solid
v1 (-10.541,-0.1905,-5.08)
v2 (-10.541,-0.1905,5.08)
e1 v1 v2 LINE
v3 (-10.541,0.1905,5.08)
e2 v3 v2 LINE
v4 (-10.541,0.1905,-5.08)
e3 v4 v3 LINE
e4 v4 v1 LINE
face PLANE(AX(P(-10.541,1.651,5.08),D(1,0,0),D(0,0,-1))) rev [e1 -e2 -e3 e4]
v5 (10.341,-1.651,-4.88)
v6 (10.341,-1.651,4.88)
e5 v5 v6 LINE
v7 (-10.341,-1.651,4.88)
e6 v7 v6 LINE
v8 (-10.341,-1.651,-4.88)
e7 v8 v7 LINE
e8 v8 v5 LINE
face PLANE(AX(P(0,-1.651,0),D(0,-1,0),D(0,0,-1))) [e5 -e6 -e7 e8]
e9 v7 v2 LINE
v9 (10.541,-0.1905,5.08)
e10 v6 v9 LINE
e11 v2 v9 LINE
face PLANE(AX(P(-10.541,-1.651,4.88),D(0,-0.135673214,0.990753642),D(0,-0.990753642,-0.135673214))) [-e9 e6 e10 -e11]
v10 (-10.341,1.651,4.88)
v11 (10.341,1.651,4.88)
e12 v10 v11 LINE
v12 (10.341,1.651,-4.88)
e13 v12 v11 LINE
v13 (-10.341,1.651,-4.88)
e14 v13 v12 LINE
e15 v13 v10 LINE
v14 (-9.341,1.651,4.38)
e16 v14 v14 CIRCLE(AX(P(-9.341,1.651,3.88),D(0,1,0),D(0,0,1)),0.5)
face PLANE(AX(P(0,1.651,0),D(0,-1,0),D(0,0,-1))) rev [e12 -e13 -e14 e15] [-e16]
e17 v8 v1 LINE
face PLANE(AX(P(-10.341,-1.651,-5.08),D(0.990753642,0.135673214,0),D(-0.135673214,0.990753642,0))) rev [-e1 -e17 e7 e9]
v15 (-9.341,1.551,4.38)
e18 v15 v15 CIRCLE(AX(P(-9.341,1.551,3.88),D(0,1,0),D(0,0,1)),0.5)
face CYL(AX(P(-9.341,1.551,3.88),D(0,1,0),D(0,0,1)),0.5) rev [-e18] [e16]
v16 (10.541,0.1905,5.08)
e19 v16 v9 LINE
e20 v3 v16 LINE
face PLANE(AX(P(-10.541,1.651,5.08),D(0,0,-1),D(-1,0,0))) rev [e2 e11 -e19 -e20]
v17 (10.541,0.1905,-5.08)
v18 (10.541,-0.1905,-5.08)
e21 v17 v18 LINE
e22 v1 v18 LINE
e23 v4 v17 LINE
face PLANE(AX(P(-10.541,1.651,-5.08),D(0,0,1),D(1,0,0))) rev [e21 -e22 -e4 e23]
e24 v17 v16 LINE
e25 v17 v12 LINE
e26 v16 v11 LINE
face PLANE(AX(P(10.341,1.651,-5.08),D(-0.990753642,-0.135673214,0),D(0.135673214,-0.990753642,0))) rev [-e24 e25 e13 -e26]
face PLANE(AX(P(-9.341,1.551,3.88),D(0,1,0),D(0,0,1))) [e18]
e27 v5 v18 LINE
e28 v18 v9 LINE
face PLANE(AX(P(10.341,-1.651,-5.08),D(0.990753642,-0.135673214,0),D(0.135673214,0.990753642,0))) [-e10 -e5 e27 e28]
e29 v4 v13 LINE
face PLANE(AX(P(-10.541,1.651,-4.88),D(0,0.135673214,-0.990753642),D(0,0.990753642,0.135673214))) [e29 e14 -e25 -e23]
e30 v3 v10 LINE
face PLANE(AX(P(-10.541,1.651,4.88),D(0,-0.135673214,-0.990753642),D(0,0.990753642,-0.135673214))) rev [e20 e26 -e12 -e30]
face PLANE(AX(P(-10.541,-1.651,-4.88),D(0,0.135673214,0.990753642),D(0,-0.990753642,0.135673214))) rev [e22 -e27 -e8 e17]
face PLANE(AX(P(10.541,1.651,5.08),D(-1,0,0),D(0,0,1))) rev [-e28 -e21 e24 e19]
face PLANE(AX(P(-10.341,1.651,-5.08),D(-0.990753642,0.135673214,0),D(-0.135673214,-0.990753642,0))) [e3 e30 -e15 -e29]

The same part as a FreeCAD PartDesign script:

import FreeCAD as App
import Part
import Sketcher

V = App.Vector
Q = App.Units.Quantity

doc = App.newDocument("Part")
params = doc.addObject("Spreadsheet::Sheet", "Params")
for row, (alias, value) in enumerate([
    ("sketch1_height", "10.16 mm"),
    ("pad1_length", "3.302 mm"),
    ("sketch2_height", "0.2 mm"),
    ("sketch3_height", "0.2 mm"),
    ("sketch4_width", "0.2 mm"),
    ("sketch5_width", "0.2 mm"),
    ("sketch6_diameter", "1 mm"),
    ("pocket5_length", "0.1 mm"),
], start=1):
    params.set(f"A{row}", alias)
    params.set(f"B{row}", "=" + value)
    params.setAlias(f"B{row}", alias)

body = doc.addObject("PartDesign::Body", "Body")

# Sketch on XZ plane
sketch1 = body.newObject("Sketcher::SketchObject", "Sketch")
sketch1.AttachmentSupport = (doc.getObject("XZ_Plane"), [""])
sketch1.MapMode = "FlatFace"
sketch1.addGeometry(Part.LineSegment(V(-10.541, -5.08, 0), V(-10.541, 5.08, 0)), False)
sketch1.addGeometry(Part.LineSegment(V(-10.541, 5.08, 0), V(10.541, 5.08, 0)), False)
sketch1.addGeometry(Part.LineSegment(V(10.541, 5.08, 0), V(10.541, -5.08, 0)), False)
sketch1.addGeometry(Part.LineSegment(V(10.541, -5.08, 0), V(-10.541, -5.08, 0)), False)
sketch1.addConstraint(Sketcher.Constraint("Coincident", 0, 2, 1, 1))
sketch1.addConstraint(Sketcher.Constraint("Coincident", 1, 2, 2, 1))
sketch1.addConstraint(Sketcher.Constraint("Coincident", 2, 2, 3, 1))
sketch1.addConstraint(Sketcher.Constraint("Coincident", 3, 2, 0, 1))
sketch1.addConstraint(Sketcher.Constraint("Vertical", 0))
sketch1.addConstraint(Sketcher.Constraint("Horizontal", 1))
sketch1.addConstraint(Sketcher.Constraint("Vertical", 2))
sketch1.addConstraint(Sketcher.Constraint("Horizontal", 3))
sketch1.addConstraint(Sketcher.Constraint("Symmetric", 0, 2, 2, 2, -1, 1))
sketch1.addConstraint(Sketcher.Constraint("DistanceY", 0, 1, 0, 2, Q("10.16 mm")))
sketch1.addConstraint(Sketcher.Constraint("DistanceX", 1, 1, 1, 2, Q("21.082 mm")))
sketch1.setExpression("Constraints[9]", "Params.sketch1_height")
pad1 = body.newObject("PartDesign::Pad", "Pad")
pad1.Profile = sketch1
pad1.setExpression("Length", "Params.pad1_length")
pad1.Midplane = True

# Sketch on YZ plane
sketch2 = body.newObject("Sketcher::SketchObject", "Sketch001")
sketch2.AttachmentSupport = (doc.getObject("YZ_Plane"), [""])
sketch2.MapMode = "FlatFace"
sketch2.AttachmentOffset = App.Placement(V(0, 0, 10.541), App.Rotation())
sketch2.addGeometry(Part.LineSegment(V(1.651, 4.88, 0), V(1.651, 5.08, 0)), False)
sketch2.addGeometry(Part.LineSegment(V(1.651, 5.08, 0), V(0.1905, 5.08, 0)), False)
sketch2.addGeometry(Part.LineSegment(V(0.1905, 5.08, 0), V(1.651, 4.88, 0)), False)
sketch2.addConstraint(Sketcher.Constraint("Coincident", 0, 2, 1, 1))
sketch2.addConstraint(Sketcher.Constraint("Coincident", 1, 2, 2, 1))
sketch2.addConstraint(Sketcher.Constraint("Coincident", 2, 2, 0, 1))
sketch2.addConstraint(Sketcher.Constraint("Vertical", 0))
sketch2.addConstraint(Sketcher.Constraint("Horizontal", 1))
sketch2.addConstraint(Sketcher.Constraint("DistanceY", 0, 1, 0, 2, Q("0.2 mm")))
sketch2.addConstraint(Sketcher.Constraint("DistanceY", -1, 1, 0, 2, Q("5.08 mm")))
sketch2.addConstraint(Sketcher.Constraint("DistanceX", 1, 2, 1, 1, Q("1.4605 mm")))
sketch2.addConstraint(Sketcher.Constraint("DistanceX", -1, 1, 0, 2, Q("1.651 mm")))
sketch2.setExpression("Constraints[5]", "Params.sketch2_height")
pocket1 = body.newObject("PartDesign::Pocket", "Pocket")
pocket1.Profile = sketch2
pocket1.Type = "ThroughAll"
doc.recompute()

mirrored = body.newObject("PartDesign::Mirrored", "Mirrored")
mirrored.Originals = [pocket1]
mirrored.MirrorPlane = (doc.getObject("XY_Plane"), [""])
body.Tip = mirrored
doc.recompute()

mirrored2 = body.newObject("PartDesign::Mirrored", "Mirrored001")
mirrored2.Originals = [pocket1]
mirrored2.MirrorPlane = (doc.getObject("XZ_Plane"), [""])
body.Tip = mirrored2

# Sketch on YZ plane
sketch3 = body.newObject("Sketcher::SketchObject", "Sketch002")
sketch3.AttachmentSupport = (doc.getObject("YZ_Plane"), [""])
sketch3.MapMode = "FlatFace"
sketch3.AttachmentOffset = App.Placement(V(0, 0, 10.541), App.Rotation())
sketch3.addGeometry(Part.LineSegment(V(-1.651, -4.88, 0), V(-1.651, -5.08, 0)), False)
sketch3.addGeometry(Part.LineSegment(V(-1.651, -5.08, 0), V(-0.1905, -5.08, 0)), False)
sketch3.addGeometry(Part.LineSegment(V(-0.1905, -5.08, 0), V(-1.651, -4.88, 0)), False)
sketch3.addConstraint(Sketcher.Constraint("Coincident", 0, 2, 1, 1))
sketch3.addConstraint(Sketcher.Constraint("Coincident", 1, 2, 2, 1))
sketch3.addConstraint(Sketcher.Constraint("Coincident", 2, 2, 0, 1))
sketch3.addConstraint(Sketcher.Constraint("Vertical", 0))
sketch3.addConstraint(Sketcher.Constraint("Horizontal", 1))
sketch3.addConstraint(Sketcher.Constraint("DistanceY", 0, 2, 0, 1, Q("0.2 mm")))
sketch3.addConstraint(Sketcher.Constraint("DistanceY", 0, 2, -1, 1, Q("5.08 mm")))
sketch3.addConstraint(Sketcher.Constraint("DistanceX", 1, 1, 1, 2, Q("1.4605 mm")))
sketch3.addConstraint(Sketcher.Constraint("DistanceX", 0, 2, -1, 1, Q("1.651 mm")))
sketch3.setExpression("Constraints[5]", "Params.sketch3_height")
pocket2 = body.newObject("PartDesign::Pocket", "Pocket001")
pocket2.Profile = sketch3
pocket2.Type = "ThroughAll"

# Sketch on XY plane
sketch4 = body.newObject("Sketcher::SketchObject", "Sketch003")
sketch4.AttachmentSupport = (doc.getObject("XY_Plane"), [""])
sketch4.MapMode = "FlatFace"
sketch4.AttachmentOffset = App.Placement(V(0, 0, 5.08), App.Rotation())
sketch4.addGeometry(Part.LineSegment(V(10.541, 0.1905, 0), V(10.541, 1.651, 0)), False)
sketch4.addGeometry(Part.LineSegment(V(10.541, 1.651, 0), V(10.341, 1.651, 0)), False)
sketch4.addGeometry(Part.LineSegment(V(10.341, 1.651, 0), V(10.541, 0.1905, 0)), False)
sketch4.addConstraint(Sketcher.Constraint("Coincident", 0, 2, 1, 1))
sketch4.addConstraint(Sketcher.Constraint("Coincident", 1, 2, 2, 1))
sketch4.addConstraint(Sketcher.Constraint("Coincident", 2, 2, 0, 1))
sketch4.addConstraint(Sketcher.Constraint("Vertical", 0))
sketch4.addConstraint(Sketcher.Constraint("Horizontal", 1))
sketch4.addConstraint(Sketcher.Constraint("DistanceX", 1, 2, 1, 1, Q("0.2 mm")))
sketch4.addConstraint(Sketcher.Constraint("DistanceY", 0, 1, 0, 2, Q("1.4605 mm")))
sketch4.addConstraint(Sketcher.Constraint("DistanceX", -1, 1, 0, 2, Q("10.541 mm")))
sketch4.addConstraint(Sketcher.Constraint("DistanceY", -1, 1, 0, 2, Q("1.651 mm")))
sketch4.setExpression("Constraints[5]", "Params.sketch4_width")
pocket3 = body.newObject("PartDesign::Pocket", "Pocket002")
pocket3.Profile = sketch4
pocket3.Type = "ThroughAll"
doc.recompute()

mirrored3 = body.newObject("PartDesign::Mirrored", "Mirrored002")
mirrored3.Originals = [pocket3]
mirrored3.MirrorPlane = (doc.getObject("XZ_Plane"), [""])
body.Tip = mirrored3
doc.recompute()

mirrored4 = body.newObject("PartDesign::Mirrored", "Mirrored003")
mirrored4.Originals = [pocket3]
mirrored4.MirrorPlane = (doc.getObject("YZ_Plane"), [""])
body.Tip = mirrored4

# Sketch on XY plane
sketch5 = body.newObject("Sketcher::SketchObject", "Sketch004")
sketch5.AttachmentSupport = (doc.getObject("XY_Plane"), [""])
sketch5.MapMode = "FlatFace"
sketch5.AttachmentOffset = App.Placement(V(0, 0, 5.08), App.Rotation())
sketch5.addGeometry(Part.LineSegment(V(-10.541, -0.1905, 0), V(-10.541, -1.651, 0)), False)
sketch5.addGeometry(Part.LineSegment(V(-10.541, -1.651, 0), V(-10.341, -1.651, 0)), False)
sketch5.addGeometry(Part.LineSegment(V(-10.341, -1.651, 0), V(-10.541, -0.1905, 0)), False)
sketch5.addConstraint(Sketcher.Constraint("Coincident", 0, 2, 1, 1))
sketch5.addConstraint(Sketcher.Constraint("Coincident", 1, 2, 2, 1))
sketch5.addConstraint(Sketcher.Constraint("Coincident", 2, 2, 0, 1))
sketch5.addConstraint(Sketcher.Constraint("Vertical", 0))
sketch5.addConstraint(Sketcher.Constraint("Horizontal", 1))
sketch5.addConstraint(Sketcher.Constraint("DistanceX", 1, 1, 1, 2, Q("0.2 mm")))
sketch5.addConstraint(Sketcher.Constraint("DistanceY", 0, 2, 0, 1, Q("1.4605 mm")))
sketch5.addConstraint(Sketcher.Constraint("DistanceX", 0, 2, -1, 1, Q("10.541 mm")))
sketch5.addConstraint(Sketcher.Constraint("DistanceY", 0, 2, -1, 1, Q("1.651 mm")))
sketch5.setExpression("Constraints[5]", "Params.sketch5_width")
pocket4 = body.newObject("PartDesign::Pocket", "Pocket003")
pocket4.Profile = sketch5
pocket4.Type = "ThroughAll"

# Sketch on XZ plane
sketch6 = body.newObject("Sketcher::SketchObject", "Sketch005")
sketch6.AttachmentSupport = (doc.getObject("XZ_Plane"), [""])
sketch6.MapMode = "FlatFace"
sketch6.AttachmentOffset = App.Placement(V(0, 0, -1.651), App.Rotation())
sketch6.addGeometry(Part.Circle(V(-9.341, 3.88, 0), V(0, 0, 1), 0.5), False)
sketch6.addConstraint(Sketcher.Constraint("Diameter", 0, Q("1 mm")))
sketch6.addConstraint(Sketcher.Constraint("DistanceY", -1, 1, 0, 3, Q("3.88 mm")))
sketch6.addConstraint(Sketcher.Constraint("DistanceX", 0, 3, -1, 1, Q("9.341 mm")))
sketch6.setExpression("Constraints[0]", "Params.sketch6_diameter")
pocket5 = body.newObject("PartDesign::Pocket", "Pocket004")
pocket5.Profile = sketch6
pocket5.setExpression("Length", "Params.pocket5_length")
pocket5.Reversed = True

doc.recompute()
